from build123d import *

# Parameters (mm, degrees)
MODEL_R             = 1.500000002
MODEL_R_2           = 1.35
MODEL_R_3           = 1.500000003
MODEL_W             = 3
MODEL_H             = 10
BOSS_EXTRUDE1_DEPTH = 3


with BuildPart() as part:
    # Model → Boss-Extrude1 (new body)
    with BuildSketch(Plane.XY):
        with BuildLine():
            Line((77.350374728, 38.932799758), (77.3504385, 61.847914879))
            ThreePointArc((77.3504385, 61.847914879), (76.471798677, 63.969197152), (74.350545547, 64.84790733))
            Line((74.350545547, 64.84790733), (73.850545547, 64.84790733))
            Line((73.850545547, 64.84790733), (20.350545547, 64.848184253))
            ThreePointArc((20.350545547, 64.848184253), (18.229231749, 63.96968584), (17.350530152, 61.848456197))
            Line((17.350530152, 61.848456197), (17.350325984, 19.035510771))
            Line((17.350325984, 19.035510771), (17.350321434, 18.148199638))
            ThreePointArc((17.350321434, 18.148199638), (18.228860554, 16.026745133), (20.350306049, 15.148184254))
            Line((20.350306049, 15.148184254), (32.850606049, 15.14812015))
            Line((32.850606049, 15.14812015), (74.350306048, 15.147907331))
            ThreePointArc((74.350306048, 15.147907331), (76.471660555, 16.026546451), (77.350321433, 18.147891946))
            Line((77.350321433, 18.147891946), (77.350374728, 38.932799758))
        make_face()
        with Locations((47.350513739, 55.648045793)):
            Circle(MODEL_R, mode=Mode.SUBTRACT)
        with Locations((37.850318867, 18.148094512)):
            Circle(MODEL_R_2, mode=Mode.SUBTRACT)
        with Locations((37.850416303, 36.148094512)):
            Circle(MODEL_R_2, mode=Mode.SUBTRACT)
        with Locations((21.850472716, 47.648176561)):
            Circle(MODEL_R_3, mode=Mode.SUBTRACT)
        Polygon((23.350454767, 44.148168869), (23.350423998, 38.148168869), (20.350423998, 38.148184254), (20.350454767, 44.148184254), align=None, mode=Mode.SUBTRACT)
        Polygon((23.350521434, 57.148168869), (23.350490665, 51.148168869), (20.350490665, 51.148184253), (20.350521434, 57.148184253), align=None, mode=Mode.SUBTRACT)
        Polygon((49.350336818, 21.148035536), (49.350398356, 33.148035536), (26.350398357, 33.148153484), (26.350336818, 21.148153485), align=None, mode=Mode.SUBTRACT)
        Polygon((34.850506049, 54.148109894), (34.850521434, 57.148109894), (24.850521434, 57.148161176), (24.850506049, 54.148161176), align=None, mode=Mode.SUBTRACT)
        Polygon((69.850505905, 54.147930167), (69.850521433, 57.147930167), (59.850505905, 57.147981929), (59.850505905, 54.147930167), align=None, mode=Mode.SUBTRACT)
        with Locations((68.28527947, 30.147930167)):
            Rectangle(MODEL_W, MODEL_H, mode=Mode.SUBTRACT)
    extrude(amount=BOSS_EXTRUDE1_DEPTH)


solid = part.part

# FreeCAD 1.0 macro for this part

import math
import FreeCAD as App
import Part
import Sketcher

V = App.Vector
Q = App.Units.Quantity

doc = App.newDocument("Part")
body = doc.addObject("PartDesign::Body", "Body")

# Sketch on XY plane
sketch1 = body.newObject("Sketcher::SketchObject", "Sketch")
sketch1.AttachmentSupport = (doc.getObject("XY_Plane"), [""])
sketch1.MapMode = "FlatFace"
sketch1.addGeometry([
    Part.LineSegment(V(77.4, 38.9, 0), V(77.4, 61.8, 0)),  # 0
    Part.ArcOfCircle(Part.Circle(V(74.4, 61.8, 0), V(0, 0, 1), 3), math.radians(0), math.radians(90)),  # 1
    Part.LineSegment(V(74.4, 64.8, 0), V(73.9, 64.8, 0)),  # 2
    Part.LineSegment(V(73.9, 64.8, 0), V(20.4, 64.8, 0)),  # 3
    Part.ArcOfCircle(Part.Circle(V(20.4, 61.8, 0), V(0, 0, 1), 3), math.radians(90), math.radians(180)),  # 4
    Part.LineSegment(V(17.4, 61.8, 0), V(17.4, 19, 0)),  # 5
    Part.LineSegment(V(17.4, 19, 0), V(17.4, 18.1, 0)),  # 6
    Part.ArcOfCircle(Part.Circle(V(20.3, 18.1, 0), V(0, 0, 1), 3), math.radians(180), math.radians(270)),  # 7
    Part.LineSegment(V(20.4, 15.1, 0), V(32.9, 15.1, 0)),  # 8
    Part.LineSegment(V(32.9, 15.1, 0), V(74.4, 15.1, 0)),  # 9
    Part.ArcOfCircle(Part.Circle(V(74.4, 18.1, 0), V(0, 0, 1), 3), math.radians(-90), math.radians(0)),  # 10
    Part.LineSegment(V(77.4, 18.1, 0), V(77.4, 38.9, 0)),  # 11
    Part.Circle(V(37.9, 18.1, 0), V(0, 0, 1), 1.4),  # 12
    Part.LineSegment(V(49.4, 33.1, 0), V(49.4, 21.1, 0)),  # 13
    Part.LineSegment(V(49.4, 21.1, 0), V(26.4, 21.1, 0)),  # 14
    Part.LineSegment(V(26.4, 21.1, 0), V(26.4, 33.1, 0)),  # 15
    Part.LineSegment(V(26.4, 33.1, 0), V(49.4, 33.1, 0)),  # 16
    Part.Circle(V(37.9, 36.1, 0), V(0, 0, 1), 1.4),  # 17
    Part.LineSegment(V(69.8, 25.1, 0), V(66.8, 25.1, 0)),  # 18
    Part.LineSegment(V(66.8, 25.1, 0), V(66.8, 35.1, 0)),  # 19
    Part.LineSegment(V(66.8, 35.1, 0), V(69.8, 35.1, 0)),  # 20
    Part.LineSegment(V(69.8, 35.1, 0), V(69.8, 25.1, 0)),  # 21
    Part.LineSegment(V(20.4, 44.1, 0), V(23.4, 44.1, 0)),  # 22
    Part.LineSegment(V(23.4, 44.1, 0), V(23.4, 38.1, 0)),  # 23
    Part.LineSegment(V(23.4, 38.1, 0), V(20.4, 38.1, 0)),  # 24
    Part.LineSegment(V(20.4, 38.1, 0), V(20.4, 44.1, 0)),  # 25
    Part.Circle(V(21.9, 47.6, 0), V(0, 0, 1), 1.5),  # 26
    Part.LineSegment(V(20.4, 57.1, 0), V(23.4, 57.1, 0)),  # 27
    Part.LineSegment(V(23.4, 57.1, 0), V(23.4, 51.1, 0)),  # 28
    Part.LineSegment(V(23.4, 51.1, 0), V(20.4, 51.1, 0)),  # 29
    Part.LineSegment(V(20.4, 51.1, 0), V(20.4, 57.1, 0)),  # 30
    Part.LineSegment(V(34.9, 57.1, 0), V(34.9, 54.1, 0)),  # 31
    Part.LineSegment(V(34.9, 54.1, 0), V(24.9, 54.1, 0)),  # 32
    Part.LineSegment(V(24.9, 54.1, 0), V(24.9, 57.1, 0)),  # 33
    Part.LineSegment(V(24.9, 57.1, 0), V(34.9, 57.1, 0)),  # 34
    Part.Circle(V(47.4, 55.6, 0), V(0, 0, 1), 1.5),  # 35
    Part.LineSegment(V(69.9, 57.1, 0), V(69.9, 54.1, 0)),  # 36
    Part.LineSegment(V(69.9, 54.1, 0), V(59.9, 54.1, 0)),  # 37
    Part.LineSegment(V(59.9, 54.1, 0), V(59.9, 57.1, 0)),  # 38
    Part.LineSegment(V(59.9, 57.1, 0), V(69.9, 57.1, 0)),  # 39
], False)
sketch1.addConstraint([
    Sketcher.Constraint("Tangent", 0, 2, 1, 1),
    Sketcher.Constraint("Coincident", 1, 2, 2, 1),
    Sketcher.Constraint("Coincident", 2, 2, 3, 1),
    Sketcher.Constraint("Coincident", 3, 2, 4, 1),
    Sketcher.Constraint("Coincident", 4, 2, 5, 1),
    Sketcher.Constraint("Coincident", 5, 2, 6, 1),
    Sketcher.Constraint("Coincident", 6, 2, 7, 1),
    Sketcher.Constraint("Coincident", 7, 2, 8, 1),
    Sketcher.Constraint("Coincident", 8, 2, 9, 1),
    Sketcher.Constraint("Coincident", 9, 2, 10, 1),
    Sketcher.Constraint("Coincident", 10, 2, 11, 1),
    Sketcher.Constraint("Coincident", 11, 2, 0, 1),
    Sketcher.Constraint("Coincident", 13, 2, 14, 1),
    Sketcher.Constraint("Coincident", 14, 2, 15, 1),
    Sketcher.Constraint("Coincident", 15, 2, 16, 1),
    Sketcher.Constraint("Coincident", 16, 2, 13, 1),
    Sketcher.Constraint("Coincident", 18, 2, 19, 1),
    Sketcher.Constraint("Coincident", 19, 2, 20, 1),
    Sketcher.Constraint("Coincident", 20, 2, 21, 1),
    Sketcher.Constraint("Coincident", 21, 2, 18, 1),
    Sketcher.Constraint("Coincident", 22, 2, 23, 1),
    Sketcher.Constraint("Coincident", 23, 2, 24, 1),
    Sketcher.Constraint("Coincident", 24, 2, 25, 1),
    Sketcher.Constraint("Coincident", 25, 2, 22, 1),
    Sketcher.Constraint("Coincident", 27, 2, 28, 1),
    Sketcher.Constraint("Coincident", 28, 2, 29, 1),
    Sketcher.Constraint("Coincident", 29, 2, 30, 1),
    Sketcher.Constraint("Coincident", 30, 2, 27, 1),
    Sketcher.Constraint("Coincident", 31, 2, 32, 1),
    Sketcher.Constraint("Coincident", 32, 2, 33, 1),
    Sketcher.Constraint("Coincident", 33, 2, 34, 1),
    Sketcher.Constraint("Coincident", 34, 2, 31, 1),
    Sketcher.Constraint("Coincident", 36, 2, 37, 1),
    Sketcher.Constraint("Coincident", 37, 2, 38, 1),
    Sketcher.Constraint("Coincident", 38, 2, 39, 1),
    Sketcher.Constraint("Coincident", 39, 2, 36, 1),
    Sketcher.Constraint("Horizontal", 2),
    Sketcher.Constraint("Horizontal", 18),
    Sketcher.Constraint("Vertical", 19),
    Sketcher.Constraint("Horizontal", 20),
    Sketcher.Constraint("Vertical", 21),
    Sketcher.Constraint("Horizontal", 37),
    Sketcher.Constraint("Vertical", 38),
    Sketcher.Constraint("Equal", 12, 17),
    Sketcher.Constraint("Equal", 26, 35),
    Sketcher.Constraint("Perpendicular", 3, 5),
    Sketcher.Constraint("Parallel", 5, 6),
    Sketcher.Constraint("Perpendicular", 6, 8),
    Sketcher.Constraint("Parallel", 8, 9),
    Sketcher.Constraint("Parallel", 0, 11),
    Sketcher.Constraint("Perpendicular", 9, 13),
    Sketcher.Constraint("Perpendicular", 13, 14),
    Sketcher.Constraint("Perpendicular", 14, 15),
    Sketcher.Constraint("Perpendicular", 15, 16),
    Sketcher.Constraint("Parallel", 16, 22),
    Sketcher.Constraint("Perpendicular", 22, 23),
    Sketcher.Constraint("Perpendicular", 23, 24),
    Sketcher.Constraint("Perpendicular", 24, 25),
    Sketcher.Constraint("Perpendicular", 25, 27),
    Sketcher.Constraint("Perpendicular", 27, 28),
    Sketcher.Constraint("Perpendicular", 28, 29),
    Sketcher.Constraint("Perpendicular", 29, 30),
    Sketcher.Constraint("Parallel", 30, 31),
    Sketcher.Constraint("Perpendicular", 31, 32),
    Sketcher.Constraint("Perpendicular", 32, 33),
    Sketcher.Constraint("Perpendicular", 33, 34),
    Sketcher.Constraint("Perpendicular", 34, 36),
    Sketcher.Constraint("Perpendicular", 36, 39),
    Sketcher.Constraint("Equal", 37, 19),
    Sketcher.Constraint("Equal", 24, 27),
    Sketcher.Constraint("Equal", 25, 28),
    Sketcher.Constraint("Equal", 29, 31),
    Sketcher.Constraint("Equal", 33, 36),
    Sketcher.Constraint("Diameter", 26, Q("3 mm")),
    Sketcher.Constraint("Diameter", 12, Q("2.7 mm")),
    Sketcher.Constraint("DistanceX", 18, 2, 18, 1, Q("3 mm")),
    Sketcher.Constraint("DistanceX", 37, 2, 37, 1, Q("10 mm")),
    Sketcher.Constraint("Distance", 13, Q("12 mm")),
    Sketcher.Constraint("Distance", 14, Q("23 mm")),
    Sketcher.Constraint("Distance", 22, Q("3 mm")),
    Sketcher.Constraint("Distance", 23, Q("6 mm")),
    Sketcher.Constraint("Distance", 32, Q("10 mm")),
    Sketcher.Constraint("DistanceX", 2, 2, 2, 1, Q("0.5 mm")),
    Sketcher.Constraint("DistanceY", 12, 3, 17, 3, Q("18 mm")),
    Sketcher.Constraint("DistanceY", 22, 2, 27, 2, Q("13 mm")),
    Sketcher.Constraint("Distance", 3, Q("53.5 mm")),
    Sketcher.Constraint("Radius", 10, Q("2.999899 mm")),
    Sketcher.Constraint("DistanceX", 27, 2, 33, 2, Q("1.5 mm")),
    Sketcher.Constraint("Radius", 4, Q("2.999728 mm")),
    Sketcher.Constraint("Radius", 1, Q("2.999984 mm")),
    Sketcher.Constraint("Radius", 7, Q("2.999557 mm")),
    Sketcher.Constraint("Distance", 8, Q("12.5003 mm")),
    Sketcher.Constraint("Distance", 9, Q("41.4997 mm")),
    Sketcher.Constraint("DistanceY", 38, 1, 38, 2, Q("3.000052 mm")),
    Sketcher.Constraint("DistanceY", -1, 1, 6, 2, Q("18.1482 mm")),
    Sketcher.Constraint("DistanceY", -1, 1, 11, 2, Q("38.9328 mm")),
    Sketcher.Constraint("DistanceX", -1, 1, 15, 2, Q("26.350398 mm")),
    Sketcher.Constraint("DistanceY", 10, 3, 1, 2, Q("46.700101 mm")),
    Sketcher.Constraint("Distance", 6, Q("0.887311 mm")),
    Sketcher.Constraint("DistanceX", -1, 1, 4, 3, Q("20.350258 mm")),
    Sketcher.Constraint("DistanceY", -1, 1, 7, 3, Q("18.147742 mm")),
    Sketcher.Constraint("DistanceX", -1, 1, 12, 3, Q("37.850319 mm")),
    Sketcher.Constraint("DistanceX", -1, 1, 0, 2, Q("77.350438 mm")),
    Sketcher.Constraint("DistanceX", -1, 1, 10, 2, Q("77.350321 mm")),
    Sketcher.Constraint("DistanceY", -1, 1, 10, 2, Q("18.147892 mm")),
    Sketcher.Constraint("DistanceX", -1, 1, 18, 2, Q("66.785279 mm")),
    Sketcher.Constraint("DistanceY", -1, 1, 18, 2, Q("25.14793 mm")),
    Sketcher.Constraint("DistanceY", -1, 1, 22, 2, Q("44.148169 mm")),
    Sketcher.Constraint("DistanceX", -1, 1, 27, 2, Q("23.350521 mm")),
    Sketcher.Constraint("DistanceY", -1, 1, 31, 2, Q("54.14811 mm")),
    Sketcher.Constraint("DistanceY", -1, 1, 36, 2, Q("54.14793 mm")),
    Sketcher.Constraint("DistanceX", -1, 1, 39, 2, Q("69.850521 mm")),
    Sketcher.Constraint("DistanceY", 10, 3, 12, 3, Q("0.000288 mm")),
    Sketcher.Constraint("DistanceX", 4, 3, 17, 3, Q("17.500158 mm")),
    Sketcher.Constraint("DistanceY", 26, 3, 4, 3, Q("14.20028 mm")),
    Sketcher.Constraint("DistanceX", 26, 3, 1, 3, Q("52.499982 mm")),
    Sketcher.Constraint("DistanceY", 17, 3, 35, 3, Q("19.499951 mm")),
    Sketcher.Constraint("DistanceX", 26, 3, 35, 3, Q("25.500041 mm")),
    Sketcher.Constraint("DistanceX", 35, 3, 1, 2, Q("27.000032 mm")),
    Sketcher.Constraint("DistanceY", 4, 2, 3, 2, Q("2.999728 mm")),
    Sketcher.Constraint("DistanceX", 5, 2, 7, 2, Q("2.99998 mm")),
    Sketcher.Constraint("DistanceY", 12, 3, 13, 2, Q("2.999941 mm")),
    Sketcher.Constraint("DistanceX", 22, 2, 17, 3, Q("14.499962 mm")),
])
pad1 = body.newObject("PartDesign::Pad", "Pad")
pad1.Profile = sketch1
pad1.Length = 3

doc.recompute()
